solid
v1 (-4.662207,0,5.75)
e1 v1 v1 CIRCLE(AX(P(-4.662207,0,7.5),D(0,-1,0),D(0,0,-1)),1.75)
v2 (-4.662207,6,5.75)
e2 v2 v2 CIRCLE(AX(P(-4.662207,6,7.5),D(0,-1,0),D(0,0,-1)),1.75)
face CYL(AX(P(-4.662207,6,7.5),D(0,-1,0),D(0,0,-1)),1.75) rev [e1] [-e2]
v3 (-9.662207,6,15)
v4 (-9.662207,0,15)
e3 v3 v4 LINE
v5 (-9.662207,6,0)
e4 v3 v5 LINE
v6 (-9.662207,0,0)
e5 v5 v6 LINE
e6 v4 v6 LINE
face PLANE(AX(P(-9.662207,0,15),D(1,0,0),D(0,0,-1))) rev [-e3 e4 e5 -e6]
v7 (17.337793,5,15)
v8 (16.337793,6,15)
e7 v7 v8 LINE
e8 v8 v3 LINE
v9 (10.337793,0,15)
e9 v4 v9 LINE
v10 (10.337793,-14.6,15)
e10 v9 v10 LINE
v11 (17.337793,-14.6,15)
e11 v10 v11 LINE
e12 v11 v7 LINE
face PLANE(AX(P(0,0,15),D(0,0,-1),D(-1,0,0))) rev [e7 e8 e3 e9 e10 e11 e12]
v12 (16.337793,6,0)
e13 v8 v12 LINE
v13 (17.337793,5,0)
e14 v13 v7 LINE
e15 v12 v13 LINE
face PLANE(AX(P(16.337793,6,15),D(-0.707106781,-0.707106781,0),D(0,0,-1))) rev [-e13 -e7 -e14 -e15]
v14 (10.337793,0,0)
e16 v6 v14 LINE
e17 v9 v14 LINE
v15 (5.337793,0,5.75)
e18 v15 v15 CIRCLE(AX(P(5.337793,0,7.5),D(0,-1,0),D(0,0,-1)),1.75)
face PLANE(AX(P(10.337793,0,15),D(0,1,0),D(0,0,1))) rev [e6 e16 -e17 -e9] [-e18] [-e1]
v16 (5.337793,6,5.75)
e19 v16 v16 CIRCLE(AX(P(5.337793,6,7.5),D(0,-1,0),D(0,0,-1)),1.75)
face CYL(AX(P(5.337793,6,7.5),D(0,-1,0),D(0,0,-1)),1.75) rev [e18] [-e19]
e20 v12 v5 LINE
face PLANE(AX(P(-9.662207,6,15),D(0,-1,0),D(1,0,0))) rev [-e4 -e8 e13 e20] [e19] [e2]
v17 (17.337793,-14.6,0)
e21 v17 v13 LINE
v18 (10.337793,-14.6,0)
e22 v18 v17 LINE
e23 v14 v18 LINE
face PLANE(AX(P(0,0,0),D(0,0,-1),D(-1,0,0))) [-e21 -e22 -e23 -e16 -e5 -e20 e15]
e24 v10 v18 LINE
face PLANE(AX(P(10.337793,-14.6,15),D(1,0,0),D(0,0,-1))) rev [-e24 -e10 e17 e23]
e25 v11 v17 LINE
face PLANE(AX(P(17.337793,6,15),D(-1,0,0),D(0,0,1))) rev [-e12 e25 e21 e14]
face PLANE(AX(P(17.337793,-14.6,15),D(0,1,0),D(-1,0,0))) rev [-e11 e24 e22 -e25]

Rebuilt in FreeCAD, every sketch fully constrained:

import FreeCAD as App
import Part
import Sketcher

V = App.Vector
Q = App.Units.Quantity


def edges_at(feature, points):
    """Names of the edges that pass closest to the given points."""
    edges = feature.Shape.Edges
    near = lambda p: min(range(len(edges)), key=lambda i: edges[i].distToShape(Part.Vertex(*p))[0])
    return sorted({f"Edge{near(p) + 1}" for p in points})

doc = App.newDocument("Part")
params = doc.addObject("Spreadsheet::Sheet", "Params")
for row, (alias, value) in enumerate([
    ("sketch1_width", "27 mm"),
    ("sketch1_width2", "20 mm"),
    ("sketch1_height", "6 mm"),
    ("sketch1_height2", "14.6 mm"),
    ("pad1_length", "15 mm"),
    ("chamfer_size", "1 mm"),
    ("sketch2_diameter", "3.5 mm"),
], start=1):
    params.set(f"A{row}", alias)
    params.set(f"B{row}", "=" + value)
    params.setAlias(f"B{row}", alias)

body = doc.addObject("PartDesign::Body", "Body")

# Sketch on XY plane
sketch1 = doc.addObject("Sketcher::SketchObject", "Sketch")
body.addObject(sketch1)
sketch1.AttachmentSupport = (doc.XY_Plane, [""])
sketch1.MapMode = "FlatFace"
sketch1.addGeometry([
    Part.LineSegment(V(17, 6, 0), V(-10, 6, 0)),  # 0
    Part.LineSegment(V(-10, 6, 0), V(-10, 0, 0)),  # 1
    Part.LineSegment(V(-10, 0, 0), V(10, 0, 0)),  # 2
    Part.LineSegment(V(10, 0, 0), V(10, -15, 0)),  # 3
    Part.LineSegment(V(10, -15, 0), V(17, -15, 0)),  # 4
    Part.LineSegment(V(17, -15, 0), V(17, 6, 0)),  # 5
], False)
sketch1.addConstraint([
    Sketcher.Constraint("Coincident", 0, 2, 1, 1),
    Sketcher.Constraint("Coincident", 1, 2, 2, 1),
    Sketcher.Constraint("Coincident", 2, 2, 3, 1),
    Sketcher.Constraint("Coincident", 3, 2, 4, 1),
    Sketcher.Constraint("Coincident", 4, 2, 5, 1),
    Sketcher.Constraint("Coincident", 5, 2, 0, 1),
    Sketcher.Constraint("Horizontal", 0),
    Sketcher.Constraint("Vertical", 1),
    Sketcher.Constraint("Horizontal", 2),
    Sketcher.Constraint("Vertical", 3),
    Sketcher.Constraint("Horizontal", 4),
    Sketcher.Constraint("Vertical", 5),
    Sketcher.Constraint("PointOnObject", 1, 2, -1),
    Sketcher.Constraint("DistanceX", 0, 2, 0, 1, Q("27 mm")),
    Sketcher.Constraint("DistanceX", 2, 1, 2, 2, Q("20 mm")),
    Sketcher.Constraint("DistanceY", 1, 2, 1, 1, Q("6 mm")),
    Sketcher.Constraint("DistanceY", 3, 2, 3, 1, Q("14.6 mm")),
    Sketcher.Constraint("DistanceX", 0, 2, -1, 1, Q("9.662207 mm")),
])
sketch1.setExpression("Constraints[13]", "Params.sketch1_width")
sketch1.setExpression("Constraints[14]", "Params.sketch1_width2")
sketch1.setExpression("Constraints[15]", "Params.sketch1_height")
sketch1.setExpression("Constraints[16]", "Params.sketch1_height2")
pad1 = doc.addObject("PartDesign::Pad", "Pad")
body.addObject(pad1)
pad1.Profile = sketch1
pad1.setExpression("Length", "Params.pad1_length")
doc.recompute()

chamfer = doc.addObject("PartDesign::Chamfer", "Chamfer")
body.addObject(chamfer)
chamfer.Base = (pad1, edges_at(pad1, [(17.338, 6, 7.5)]))
chamfer.setExpression("Size", "Params.chamfer_size")

# Sketch on XZ plane
sketch2 = doc.addObject("Sketcher::SketchObject", "Sketch001")
body.addObject(sketch2)
sketch2.AttachmentSupport = (doc.XZ_Plane, [""])
sketch2.MapMode = "FlatFace"
sketch2.addGeometry([
    Part.Circle(V(-4.7, 7.5, 0), V(0, 0, 1), 1.8),
    Part.Circle(V(5.3, 7.5, 0), V(0, 0, 1), 1.8),
], False)
sketch2.addConstraint([
    Sketcher.Constraint("Equal", 0, 1),
    Sketcher.Constraint("Horizontal", 0, 3, 1, 3),
    Sketcher.Constraint("Diameter", 0, Q("3.5 mm")),
    Sketcher.Constraint("DistanceX", 0, 3, 1, 3, Q("10 mm")),
    Sketcher.Constraint("DistanceY", -1, 1, 0, 3, Q("7.5 mm")),
    Sketcher.Constraint("DistanceX", 0, 3, -1, 1, Q("4.662207 mm")),
])
sketch2.setExpression("Constraints[2]", "Params.sketch2_diameter")
pocket1 = doc.addObject("PartDesign::Pocket", "Pocket")
body.addObject(pocket1)
pocket1.Profile = sketch2
pocket1.Type = "ThroughAll"

doc.recompute()
